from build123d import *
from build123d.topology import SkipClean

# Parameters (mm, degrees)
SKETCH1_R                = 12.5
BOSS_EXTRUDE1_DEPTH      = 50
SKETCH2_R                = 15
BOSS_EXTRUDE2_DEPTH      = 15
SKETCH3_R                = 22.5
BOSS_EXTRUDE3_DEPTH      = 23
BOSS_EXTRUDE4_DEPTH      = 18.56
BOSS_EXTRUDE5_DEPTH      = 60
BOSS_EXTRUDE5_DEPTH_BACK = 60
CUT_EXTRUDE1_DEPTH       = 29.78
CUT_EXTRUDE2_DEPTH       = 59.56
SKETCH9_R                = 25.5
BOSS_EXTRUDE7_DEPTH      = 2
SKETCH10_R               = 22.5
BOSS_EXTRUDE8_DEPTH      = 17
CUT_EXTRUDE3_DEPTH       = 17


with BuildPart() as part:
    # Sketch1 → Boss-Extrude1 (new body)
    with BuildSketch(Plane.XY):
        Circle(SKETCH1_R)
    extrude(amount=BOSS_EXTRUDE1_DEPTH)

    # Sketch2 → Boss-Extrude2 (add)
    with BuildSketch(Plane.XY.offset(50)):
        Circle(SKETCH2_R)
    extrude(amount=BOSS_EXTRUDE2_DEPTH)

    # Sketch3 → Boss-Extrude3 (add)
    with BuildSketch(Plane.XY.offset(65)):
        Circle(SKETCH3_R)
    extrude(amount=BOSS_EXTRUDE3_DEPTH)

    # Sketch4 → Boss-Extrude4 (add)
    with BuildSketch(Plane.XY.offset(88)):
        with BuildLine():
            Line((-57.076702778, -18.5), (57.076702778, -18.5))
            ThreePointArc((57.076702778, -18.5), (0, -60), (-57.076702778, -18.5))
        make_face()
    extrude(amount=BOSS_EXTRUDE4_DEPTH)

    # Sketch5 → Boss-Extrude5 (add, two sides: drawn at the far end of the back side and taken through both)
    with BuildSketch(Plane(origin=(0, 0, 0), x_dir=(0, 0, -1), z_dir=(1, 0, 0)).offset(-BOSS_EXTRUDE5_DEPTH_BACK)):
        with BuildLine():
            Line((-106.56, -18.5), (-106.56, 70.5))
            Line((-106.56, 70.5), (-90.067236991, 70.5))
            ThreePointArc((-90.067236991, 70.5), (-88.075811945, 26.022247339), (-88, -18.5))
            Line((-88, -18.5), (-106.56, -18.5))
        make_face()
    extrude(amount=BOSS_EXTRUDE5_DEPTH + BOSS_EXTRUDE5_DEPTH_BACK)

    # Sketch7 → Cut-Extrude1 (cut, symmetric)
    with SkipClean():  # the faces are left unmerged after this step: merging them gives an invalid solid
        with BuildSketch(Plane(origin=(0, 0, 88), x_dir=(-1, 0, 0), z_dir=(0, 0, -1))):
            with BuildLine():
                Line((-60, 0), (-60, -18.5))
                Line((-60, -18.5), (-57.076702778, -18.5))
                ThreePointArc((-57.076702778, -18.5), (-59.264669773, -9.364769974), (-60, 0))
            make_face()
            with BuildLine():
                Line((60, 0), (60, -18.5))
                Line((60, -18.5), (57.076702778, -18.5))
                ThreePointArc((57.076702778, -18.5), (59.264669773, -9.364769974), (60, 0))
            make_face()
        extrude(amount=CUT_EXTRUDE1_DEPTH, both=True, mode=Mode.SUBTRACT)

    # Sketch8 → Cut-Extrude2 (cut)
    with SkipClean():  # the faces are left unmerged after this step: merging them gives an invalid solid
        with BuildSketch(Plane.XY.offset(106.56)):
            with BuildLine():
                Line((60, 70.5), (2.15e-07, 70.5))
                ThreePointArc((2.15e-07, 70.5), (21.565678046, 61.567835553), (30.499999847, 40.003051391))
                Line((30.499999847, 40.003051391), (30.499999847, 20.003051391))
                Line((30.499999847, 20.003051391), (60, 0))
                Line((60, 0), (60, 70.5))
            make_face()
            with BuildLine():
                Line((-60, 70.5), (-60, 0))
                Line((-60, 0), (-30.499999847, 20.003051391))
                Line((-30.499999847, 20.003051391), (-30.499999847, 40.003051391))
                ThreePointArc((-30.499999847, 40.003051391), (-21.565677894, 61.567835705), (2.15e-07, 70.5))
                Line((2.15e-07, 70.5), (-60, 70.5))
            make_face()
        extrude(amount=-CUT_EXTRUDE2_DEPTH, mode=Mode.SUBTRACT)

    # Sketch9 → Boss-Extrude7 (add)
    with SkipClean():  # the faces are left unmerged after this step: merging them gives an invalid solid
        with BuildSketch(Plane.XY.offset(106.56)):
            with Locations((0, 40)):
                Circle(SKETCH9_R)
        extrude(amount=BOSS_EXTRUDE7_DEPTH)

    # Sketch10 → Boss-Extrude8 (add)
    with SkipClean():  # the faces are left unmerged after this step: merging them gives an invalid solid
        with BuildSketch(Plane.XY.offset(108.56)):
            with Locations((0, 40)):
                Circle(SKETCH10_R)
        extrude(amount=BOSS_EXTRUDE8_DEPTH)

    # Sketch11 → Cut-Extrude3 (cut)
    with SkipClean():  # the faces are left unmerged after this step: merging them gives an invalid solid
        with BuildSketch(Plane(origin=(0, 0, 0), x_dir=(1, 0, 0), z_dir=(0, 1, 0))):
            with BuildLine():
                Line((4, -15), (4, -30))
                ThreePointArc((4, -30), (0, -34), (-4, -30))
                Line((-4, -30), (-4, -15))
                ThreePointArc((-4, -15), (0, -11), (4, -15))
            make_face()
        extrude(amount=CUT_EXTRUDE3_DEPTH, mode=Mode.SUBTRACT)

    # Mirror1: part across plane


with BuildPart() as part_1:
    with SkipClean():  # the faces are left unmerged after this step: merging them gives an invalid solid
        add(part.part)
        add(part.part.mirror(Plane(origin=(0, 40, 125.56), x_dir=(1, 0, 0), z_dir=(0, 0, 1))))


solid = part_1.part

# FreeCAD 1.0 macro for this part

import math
import FreeCAD as App
import Part
import Sketcher
Q = App.Units.Quantity

doc = App.newDocument("Part")
params = doc.addObject("Spreadsheet::Sheet", "Params")
for row, (alias, value) in enumerate([
    ("sketch1_diameter", "25 mm"),
    ("pad1_length", "50 mm"),
    ("sketch2_diameter", "30 mm"),
    ("pad2_length", "15 mm"),
    ("sketch3_diameter", "45 mm"),
    ("pad3_length", "23 mm"),
    ("sketch4_radius", "60 mm"),
    ("pad4_length", "18.56 mm"),
    ("sketch5_radius", "1034.5 mm"),
    ("sketch5_width", "89 mm"),
    ("sketch5_height", "18.56 mm"),
    ("pad5_length", "60 mm"),
    ("pad5_length2", "60 mm"),
    ("sketch6_radius", "60 mm"),
    ("sketch6_height", "18.5 mm"),
    ("pocket1_length", "59.56 mm"),
    ("sketch7_radius", "30.5 mm"),
    ("sketch7_width", "60 mm"),
    ("sketch7_height", "20 mm"),
    ("sketch7_height2", "70.5 mm"),
    ("pocket2_length", "59.56 mm"),
    ("sketch8_diameter", "51 mm"),
    ("pad6_length", "2 mm"),
    ("sketch9_diameter", "45 mm"),
    ("pad7_length", "17 mm"),
    ("sketch10_radius", "4 mm"),
    ("sketch10_height", "15 mm"),
    ("pocket3_length", "17 mm"),
], start=1):
    params.set(f"A{row}", alias)
    params.set(f"B{row}", "=" + value)
    params.setAlias(f"B{row}", alias)

body = doc.addObject("PartDesign::Body", "Body")

sketch1 = body.newObject("Sketcher::SketchObject", "Sketch")
sketch1.AttachmentSupport = (doc.getObject("XY_Plane"), [""])
sketch1.MapMode = "FlatFace"
sketch1.addGeometry(Part.Circle(App.Vector(0, 0, 0), App.Vector(0, 0, 1), 12), False)
sketch1.addConstraint(Sketcher.Constraint("Coincident", 0, 3, -1, 1))
sketch1.addConstraint(Sketcher.Constraint("Diameter", 0, 25.0))
sketch1.setExpression("Constraints[1]", "Params.sketch1_diameter")
pad1 = body.newObject("PartDesign::Pad", "Pad")
pad1.Profile = sketch1
pad1.setExpression("Length", "Params.pad1_length")

sketch2 = body.newObject("Sketcher::SketchObject", "Sketch001")
sketch2.AttachmentSupport = (doc.getObject("XY_Plane"), [""])
sketch2.MapMode = "FlatFace"
sketch2.AttachmentOffset = App.Placement(App.Vector(0, 0, 50), App.Rotation())
sketch2.addGeometry(Part.Circle(App.Vector(0, 0, 0), App.Vector(0, 0, 1), 15), False)
sketch2.addConstraint(Sketcher.Constraint("Coincident", 0, 3, -1, 1))
sketch2.addConstraint(Sketcher.Constraint("Diameter", 0, 30.0))
sketch2.setExpression("Constraints[1]", "Params.sketch2_diameter")
pad2 = body.newObject("PartDesign::Pad", "Pad001")
pad2.Profile = sketch2
pad2.setExpression("Length", "Params.pad2_length")

sketch3 = body.newObject("Sketcher::SketchObject", "Sketch002")
sketch3.AttachmentSupport = (doc.getObject("XY_Plane"), [""])
sketch3.MapMode = "FlatFace"
sketch3.AttachmentOffset = App.Placement(App.Vector(0, 0, 65), App.Rotation())
sketch3.addGeometry(Part.Circle(App.Vector(0, 0, 0), App.Vector(0, 0, 1), 22), False)
sketch3.addConstraint(Sketcher.Constraint("Coincident", 0, 3, -1, 1))
sketch3.addConstraint(Sketcher.Constraint("Diameter", 0, 45.0))
sketch3.setExpression("Constraints[1]", "Params.sketch3_diameter")
pad3 = body.newObject("PartDesign::Pad", "Pad002")
pad3.Profile = sketch3
pad3.setExpression("Length", "Params.pad3_length")

sketch4 = body.newObject("Sketcher::SketchObject", "Sketch003")
sketch4.AttachmentSupport = (doc.getObject("XY_Plane"), [""])
sketch4.MapMode = "FlatFace"
sketch4.AttachmentOffset = App.Placement(App.Vector(0, 0, 88), App.Rotation())
sketch4.addGeometry(Part.LineSegment(App.Vector(57, -18, 0), App.Vector(-57, -18, 0)), False)
sketch4.addGeometry(Part.ArcOfCircle(Part.Circle(App.Vector(0, 0, 0), App.Vector(0, 0, 1), 60), math.radians(-162), math.radians(-18)), False)
sketch4.addConstraint(Sketcher.Constraint("Coincident", 0, 1, 1, 2))
sketch4.addConstraint(Sketcher.Constraint("Coincident", 1, 1, 0, 2))
sketch4.addConstraint(Sketcher.Constraint("Horizontal", 0))
sketch4.addConstraint(Sketcher.Constraint("Coincident", 1, 3, -1, 1))
sketch4.addConstraint(Sketcher.Constraint("Radius", 1, 60.0))
sketch4.addConstraint(Sketcher.Constraint("DistanceY", 0, 1, -1, 1, 18.5))
sketch4.setExpression("Constraints[4]", "Params.sketch4_radius")
pad4 = body.newObject("PartDesign::Pad", "Pad003")
pad4.Profile = sketch4
pad4.setExpression("Length", "Params.pad4_length")

sketch5 = body.newObject("Sketcher::SketchObject", "Sketch004")
sketch5.AttachmentSupport = (doc.getObject("YZ_Plane"), [""])
sketch5.MapMode = "FlatFace"
sketch5.addGeometry(Part.LineSegment(App.Vector(70, 107, 0), App.Vector(-18, 107, 0)), False)
sketch5.addGeometry(Part.LineSegment(App.Vector(-18, 107, 0), App.Vector(-18, 88, 0)), False)
sketch5.addGeometry(Part.ArcOfCircle(Part.Circle(App.Vector(2, 1122, 0), App.Vector(0, 0, 1), 1034), math.radians(-91.14), math.radians(-86.2)), False)
sketch5.addGeometry(Part.LineSegment(App.Vector(70, 90, 0), App.Vector(70, 107, 0)), False)
sketch5.addConstraint(Sketcher.Constraint("Coincident", 0, 2, 1, 1))
sketch5.addConstraint(Sketcher.Constraint("Coincident", 1, 2, 2, 1))
sketch5.addConstraint(Sketcher.Constraint("Coincident", 2, 2, 3, 1))
sketch5.addConstraint(Sketcher.Constraint("Coincident", 3, 2, 0, 1))
sketch5.addConstraint(Sketcher.Constraint("Horizontal", 0))
sketch5.addConstraint(Sketcher.Constraint("Vertical", 1))
sketch5.addConstraint(Sketcher.Constraint("Vertical", 3))
sketch5.addConstraint(Sketcher.Constraint("Radius", 2, 1034.5))
sketch5.addConstraint(Sketcher.Constraint("DistanceX", 0, 2, 0, 1, 89.0))
sketch5.addConstraint(Sketcher.Constraint("DistanceX", -1, 1, 2, 3, 2.0))
sketch5.addConstraint(Sketcher.Constraint("DistanceY", -1, 1, 1, 2, 88.0))
sketch5.addConstraint(Sketcher.Constraint("DistanceY", 1, 2, 1, 1, 18.56))
sketch5.addConstraint(Sketcher.Constraint("DistanceX", 0, 2, -1, 1, 18.5))
sketch5.setExpression("Constraints[7]", "Params.sketch5_radius")
sketch5.setExpression("Constraints[8]", "Params.sketch5_width")
sketch5.setExpression("Constraints[11]", "Params.sketch5_height")
pad5 = body.newObject("PartDesign::Pad", "Pad004")
pad5.Profile = sketch5
pad5.Type = "TwoLengths"
pad5.setExpression("Length", "Params.pad5_length")
pad5.setExpression("Length2", "Params.pad5_length2")

sketch6 = body.newObject("Sketcher::SketchObject", "Sketch005")
sketch6.AttachmentSupport = (doc.getObject("XY_Plane"), [""])
sketch6.MapMode = "FlatFace"
sketch6.AttachmentOffset = App.Placement(App.Vector(0, 0, 88), App.Rotation())
sketch6.addGeometry(Part.LineSegment(App.Vector(60, 0, 0), App.Vector(60, -18.5, 0)), False)
sketch6.addGeometry(Part.LineSegment(App.Vector(60, -18.5, 0), App.Vector(57.1, -18.5, 0)), False)
sketch6.addGeometry(Part.ArcOfCircle(Part.Circle(App.Vector(0, 0, 0), App.Vector(0, 0, 1), 60), math.radians(-17.96), math.radians(0)), False)
sketch6.addGeometry(Part.LineSegment(App.Vector(-60, -18.5, 0), App.Vector(-60, 0, 0)), False)
sketch6.addGeometry(Part.ArcOfCircle(Part.Circle(App.Vector(0, 0, 0), App.Vector(0, 0, 1), 60), math.radians(-180), math.radians(-162.04)), False)
sketch6.addGeometry(Part.LineSegment(App.Vector(-57.1, -18.5, 0), App.Vector(-60, -18.5, 0)), False)
sketch6.addConstraint(Sketcher.Constraint("Coincident", 0, 2, 1, 1))
sketch6.addConstraint(Sketcher.Constraint("Coincident", 1, 2, 2, 1))
sketch6.addConstraint(Sketcher.Constraint("Tangent", 2, 2, 0, 1))
sketch6.addConstraint(Sketcher.Constraint("Tangent", 3, 2, 4, 1))
sketch6.addConstraint(Sketcher.Constraint("Coincident", 4, 2, 5, 1))
sketch6.addConstraint(Sketcher.Constraint("Coincident", 5, 2, 3, 1))
sketch6.addConstraint(Sketcher.Constraint("Vertical", 0))
sketch6.addConstraint(Sketcher.Constraint("Horizontal", 1))
sketch6.addConstraint(Sketcher.Constraint("Vertical", 3))
sketch6.addConstraint(Sketcher.Constraint("Horizontal", 5))
sketch6.addConstraint(Sketcher.Constraint("Coincident", 2, 3, -1, 1))
sketch6.addConstraint(Sketcher.Constraint("Coincident", 4, 3, -1, 1))
sketch6.addConstraint(Sketcher.Constraint("Equal", 2, 4))
sketch6.addConstraint(Sketcher.Constraint("Horizontal", 1, 2, 4, 2))
sketch6.addConstraint(Sketcher.Constraint("Radius", 2, 60.0))
sketch6.addConstraint(Sketcher.Constraint("DistanceY", 0, 2, 0, 1, 18.5))
sketch6.setExpression("Constraints[14]", "Params.sketch6_radius")
sketch6.setExpression("Constraints[15]", "Params.sketch6_height")
pocket1 = body.newObject("PartDesign::Pocket", "Pocket")
pocket1.Profile = sketch6
pocket1.setExpression("Length", "Params.pocket1_length")
pocket1.Midplane = True

sketch7 = body.newObject("Sketcher::SketchObject", "Sketch006")
sketch7.AttachmentSupport = (doc.getObject("XY_Plane"), [""])
sketch7.MapMode = "FlatFace"
sketch7.AttachmentOffset = App.Placement(App.Vector(0, 0, 106.56), App.Rotation())
sketch7.addGeometry(Part.LineSegment(App.Vector(60, 70, 0), App.Vector(0, 70, 0)), False)
sketch7.addGeometry(Part.ArcOfCircle(Part.Circle(App.Vector(0, 40, 0), App.Vector(0, 0, 1), 30), math.radians(0), math.radians(90)), False)
sketch7.addGeometry(Part.LineSegment(App.Vector(30, 40, 0), App.Vector(30, 20, 0)), False)
sketch7.addGeometry(Part.LineSegment(App.Vector(30, 20, 0), App.Vector(60, 0, 0)), False)
sketch7.addGeometry(Part.LineSegment(App.Vector(60, 0, 0), App.Vector(60, 70, 0)), False)
sketch7.addGeometry(Part.LineSegment(App.Vector(-60, 70, 0), App.Vector(-60, 0, 0)), False)
sketch7.addGeometry(Part.LineSegment(App.Vector(-60, 0, 0), App.Vector(-30, 20, 0)), False)
sketch7.addGeometry(Part.LineSegment(App.Vector(-30, 20, 0), App.Vector(-30, 40, 0)), False)
sketch7.addGeometry(Part.ArcOfCircle(Part.Circle(App.Vector(0, 40, 0), App.Vector(0, 0, 1), 30), math.radians(90), math.radians(180)), False)
sketch7.addGeometry(Part.LineSegment(App.Vector(0, 70, 0), App.Vector(-60, 70, 0)), False)
sketch7.addConstraint(Sketcher.Constraint("Tangent", 0, 2, 1, 2))
sketch7.addConstraint(Sketcher.Constraint("Coincident", 1, 1, 2, 1))
sketch7.addConstraint(Sketcher.Constraint("Coincident", 2, 2, 3, 1))
sketch7.addConstraint(Sketcher.Constraint("Coincident", 3, 2, 4, 1))
sketch7.addConstraint(Sketcher.Constraint("Coincident", 4, 2, 0, 1))
sketch7.addConstraint(Sketcher.Constraint("Coincident", 5, 2, 6, 1))
sketch7.addConstraint(Sketcher.Constraint("Coincident", 6, 2, 7, 1))
sketch7.addConstraint(Sketcher.Constraint("Coincident", 7, 2, 8, 2))
sketch7.addConstraint(Sketcher.Constraint("Tangent", 8, 1, 9, 1))
sketch7.addConstraint(Sketcher.Constraint("Coincident", 9, 2, 5, 1))
sketch7.addConstraint(Sketcher.Constraint("Horizontal", 0))
sketch7.addConstraint(Sketcher.Constraint("Vertical", 2))
sketch7.addConstraint(Sketcher.Constraint("Vertical", 4))
sketch7.addConstraint(Sketcher.Constraint("Vertical", 5))
sketch7.addConstraint(Sketcher.Constraint("Vertical", 7))
sketch7.addConstraint(Sketcher.Constraint("Horizontal", 9))
sketch7.addConstraint(Sketcher.Constraint("Coincident", 8, 3, 1, 3))
sketch7.addConstraint(Sketcher.Constraint("Equal", 1, 8))
sketch7.addConstraint(Sketcher.Constraint("Symmetric", 3, 2, 5, 2, -1, 1))
sketch7.addConstraint(Sketcher.Constraint("Symmetric", 2, 2, 6, 2, -2))
sketch7.addConstraint(Sketcher.Constraint("PointOnObject", 3, 2, -1))
sketch7.addConstraint(Sketcher.Constraint("Horizontal", 1, 1, 7, 2))
sketch7.addConstraint(Sketcher.Constraint("Radius", 1, 30.5))
sketch7.addConstraint(Sketcher.Constraint("DistanceX", 0, 2, 0, 1, 60.0))
sketch7.addConstraint(Sketcher.Constraint("DistanceY", 2, 2, 2, 1, 20.0))
sketch7.addConstraint(Sketcher.Constraint("DistanceY", 4, 1, 4, 2, 70.5))
sketch7.addConstraint(Sketcher.Constraint("Angle", 3, Q("-34.14 deg")))
sketch7.setExpression("Constraints[22]", "Params.sketch7_radius")
sketch7.setExpression("Constraints[23]", "Params.sketch7_width")
sketch7.setExpression("Constraints[24]", "Params.sketch7_height")
sketch7.setExpression("Constraints[25]", "Params.sketch7_height2")
pocket2 = body.newObject("PartDesign::Pocket", "Pocket001")
pocket2.Profile = sketch7
pocket2.setExpression("Length", "Params.pocket2_length")

sketch8 = body.newObject("Sketcher::SketchObject", "Sketch007")
sketch8.AttachmentSupport = (doc.getObject("XY_Plane"), [""])
sketch8.MapMode = "FlatFace"
sketch8.AttachmentOffset = App.Placement(App.Vector(0, 0, 106.56), App.Rotation())
sketch8.addGeometry(Part.Circle(App.Vector(0, 40, 0), App.Vector(0, 0, 1), 26), False)
sketch8.addConstraint(Sketcher.Constraint("PointOnObject", 0, 3, -2))
sketch8.addConstraint(Sketcher.Constraint("Diameter", 0, 51.0))
sketch8.addConstraint(Sketcher.Constraint("DistanceY", -1, 1, 0, 3, 40.0))
sketch8.setExpression("Constraints[1]", "Params.sketch8_diameter")
pad6 = body.newObject("PartDesign::Pad", "Pad005")
pad6.Profile = sketch8
pad6.setExpression("Length", "Params.pad6_length")

sketch9 = body.newObject("Sketcher::SketchObject", "Sketch008")
sketch9.AttachmentSupport = (doc.getObject("XY_Plane"), [""])
sketch9.MapMode = "FlatFace"
sketch9.AttachmentOffset = App.Placement(App.Vector(0, 0, 108.56), App.Rotation())
sketch9.addGeometry(Part.Circle(App.Vector(0, 40, 0), App.Vector(0, 0, 1), 22), False)
sketch9.addConstraint(Sketcher.Constraint("PointOnObject", 0, 3, -2))
sketch9.addConstraint(Sketcher.Constraint("Diameter", 0, 45.0))
sketch9.addConstraint(Sketcher.Constraint("DistanceY", -1, 1, 0, 3, 40.0))
sketch9.setExpression("Constraints[1]", "Params.sketch9_diameter")
pad7 = body.newObject("PartDesign::Pad", "Pad006")
pad7.Profile = sketch9
pad7.setExpression("Length", "Params.pad7_length")

sketch10 = body.newObject("Sketcher::SketchObject", "Sketch009")
sketch10.AttachmentSupport = (doc.getObject("XZ_Plane"), [""])
sketch10.MapMode = "FlatFace"
sketch10.addGeometry(Part.LineSegment(App.Vector(4, 30, 0), App.Vector(4, 15, 0)), False)
sketch10.addGeometry(Part.ArcOfCircle(Part.Circle(App.Vector(0, 15, 0), App.Vector(0, 0, 1), 4), math.radians(180), math.radians(360)), False)
sketch10.addGeometry(Part.LineSegment(App.Vector(-4, 15, 0), App.Vector(-4, 30, 0)), False)
sketch10.addGeometry(Part.ArcOfCircle(Part.Circle(App.Vector(0, 30, 0), App.Vector(0, 0, 1), 4), math.radians(0), math.radians(180)), False)
sketch10.addConstraint(Sketcher.Constraint("Tangent", 0, 2, 1, 2))
sketch10.addConstraint(Sketcher.Constraint("Tangent", 1, 1, 2, 1))
sketch10.addConstraint(Sketcher.Constraint("Tangent", 2, 2, 3, 2))
sketch10.addConstraint(Sketcher.Constraint("Tangent", 3, 1, 0, 1))
sketch10.addConstraint(Sketcher.Constraint("Vertical", 0))
sketch10.addConstraint(Sketcher.Constraint("Vertical", 2))
sketch10.addConstraint(Sketcher.Constraint("PointOnObject", 1, 3, -2))
sketch10.addConstraint(Sketcher.Constraint("Radius", 1, 4.0))
sketch10.addConstraint(Sketcher.Constraint("DistanceY", 0, 2, 0, 1, 15.0))
sketch10.addConstraint(Sketcher.Constraint("DistanceY", -1, 1, 1, 3, 15.0))
sketch10.setExpression("Constraints[7]", "Params.sketch10_radius")
sketch10.setExpression("Constraints[8]", "Params.sketch10_height")
pocket3 = body.newObject("PartDesign::Pocket", "Pocket002")
pocket3.Profile = sketch10
pocket3.setExpression("Length", "Params.pocket3_length")
body2 = doc.addObject("PartDesign::Body", "Body001")
doc.recompute()

body2.BaseFeature = body
doc.recompute()

mirroring = doc.addObject("Part::Mirroring", "Mirroring")
mirroring.Source = body
mirroring.Base = App.Vector(0, 40, 125.56)
mirroring.Normal = App.Vector(0, 0, 1)
body3 = doc.addObject("PartDesign::Body", "Body002")
body3.BaseFeature = mirroring
boolean = body2.newObject("PartDesign::Boolean", "Boolean")
boolean.Type = "Fuse"
boolean.addObjects([body3])
doc.recompute()
mirroring.Visibility = False

doc.recompute()
